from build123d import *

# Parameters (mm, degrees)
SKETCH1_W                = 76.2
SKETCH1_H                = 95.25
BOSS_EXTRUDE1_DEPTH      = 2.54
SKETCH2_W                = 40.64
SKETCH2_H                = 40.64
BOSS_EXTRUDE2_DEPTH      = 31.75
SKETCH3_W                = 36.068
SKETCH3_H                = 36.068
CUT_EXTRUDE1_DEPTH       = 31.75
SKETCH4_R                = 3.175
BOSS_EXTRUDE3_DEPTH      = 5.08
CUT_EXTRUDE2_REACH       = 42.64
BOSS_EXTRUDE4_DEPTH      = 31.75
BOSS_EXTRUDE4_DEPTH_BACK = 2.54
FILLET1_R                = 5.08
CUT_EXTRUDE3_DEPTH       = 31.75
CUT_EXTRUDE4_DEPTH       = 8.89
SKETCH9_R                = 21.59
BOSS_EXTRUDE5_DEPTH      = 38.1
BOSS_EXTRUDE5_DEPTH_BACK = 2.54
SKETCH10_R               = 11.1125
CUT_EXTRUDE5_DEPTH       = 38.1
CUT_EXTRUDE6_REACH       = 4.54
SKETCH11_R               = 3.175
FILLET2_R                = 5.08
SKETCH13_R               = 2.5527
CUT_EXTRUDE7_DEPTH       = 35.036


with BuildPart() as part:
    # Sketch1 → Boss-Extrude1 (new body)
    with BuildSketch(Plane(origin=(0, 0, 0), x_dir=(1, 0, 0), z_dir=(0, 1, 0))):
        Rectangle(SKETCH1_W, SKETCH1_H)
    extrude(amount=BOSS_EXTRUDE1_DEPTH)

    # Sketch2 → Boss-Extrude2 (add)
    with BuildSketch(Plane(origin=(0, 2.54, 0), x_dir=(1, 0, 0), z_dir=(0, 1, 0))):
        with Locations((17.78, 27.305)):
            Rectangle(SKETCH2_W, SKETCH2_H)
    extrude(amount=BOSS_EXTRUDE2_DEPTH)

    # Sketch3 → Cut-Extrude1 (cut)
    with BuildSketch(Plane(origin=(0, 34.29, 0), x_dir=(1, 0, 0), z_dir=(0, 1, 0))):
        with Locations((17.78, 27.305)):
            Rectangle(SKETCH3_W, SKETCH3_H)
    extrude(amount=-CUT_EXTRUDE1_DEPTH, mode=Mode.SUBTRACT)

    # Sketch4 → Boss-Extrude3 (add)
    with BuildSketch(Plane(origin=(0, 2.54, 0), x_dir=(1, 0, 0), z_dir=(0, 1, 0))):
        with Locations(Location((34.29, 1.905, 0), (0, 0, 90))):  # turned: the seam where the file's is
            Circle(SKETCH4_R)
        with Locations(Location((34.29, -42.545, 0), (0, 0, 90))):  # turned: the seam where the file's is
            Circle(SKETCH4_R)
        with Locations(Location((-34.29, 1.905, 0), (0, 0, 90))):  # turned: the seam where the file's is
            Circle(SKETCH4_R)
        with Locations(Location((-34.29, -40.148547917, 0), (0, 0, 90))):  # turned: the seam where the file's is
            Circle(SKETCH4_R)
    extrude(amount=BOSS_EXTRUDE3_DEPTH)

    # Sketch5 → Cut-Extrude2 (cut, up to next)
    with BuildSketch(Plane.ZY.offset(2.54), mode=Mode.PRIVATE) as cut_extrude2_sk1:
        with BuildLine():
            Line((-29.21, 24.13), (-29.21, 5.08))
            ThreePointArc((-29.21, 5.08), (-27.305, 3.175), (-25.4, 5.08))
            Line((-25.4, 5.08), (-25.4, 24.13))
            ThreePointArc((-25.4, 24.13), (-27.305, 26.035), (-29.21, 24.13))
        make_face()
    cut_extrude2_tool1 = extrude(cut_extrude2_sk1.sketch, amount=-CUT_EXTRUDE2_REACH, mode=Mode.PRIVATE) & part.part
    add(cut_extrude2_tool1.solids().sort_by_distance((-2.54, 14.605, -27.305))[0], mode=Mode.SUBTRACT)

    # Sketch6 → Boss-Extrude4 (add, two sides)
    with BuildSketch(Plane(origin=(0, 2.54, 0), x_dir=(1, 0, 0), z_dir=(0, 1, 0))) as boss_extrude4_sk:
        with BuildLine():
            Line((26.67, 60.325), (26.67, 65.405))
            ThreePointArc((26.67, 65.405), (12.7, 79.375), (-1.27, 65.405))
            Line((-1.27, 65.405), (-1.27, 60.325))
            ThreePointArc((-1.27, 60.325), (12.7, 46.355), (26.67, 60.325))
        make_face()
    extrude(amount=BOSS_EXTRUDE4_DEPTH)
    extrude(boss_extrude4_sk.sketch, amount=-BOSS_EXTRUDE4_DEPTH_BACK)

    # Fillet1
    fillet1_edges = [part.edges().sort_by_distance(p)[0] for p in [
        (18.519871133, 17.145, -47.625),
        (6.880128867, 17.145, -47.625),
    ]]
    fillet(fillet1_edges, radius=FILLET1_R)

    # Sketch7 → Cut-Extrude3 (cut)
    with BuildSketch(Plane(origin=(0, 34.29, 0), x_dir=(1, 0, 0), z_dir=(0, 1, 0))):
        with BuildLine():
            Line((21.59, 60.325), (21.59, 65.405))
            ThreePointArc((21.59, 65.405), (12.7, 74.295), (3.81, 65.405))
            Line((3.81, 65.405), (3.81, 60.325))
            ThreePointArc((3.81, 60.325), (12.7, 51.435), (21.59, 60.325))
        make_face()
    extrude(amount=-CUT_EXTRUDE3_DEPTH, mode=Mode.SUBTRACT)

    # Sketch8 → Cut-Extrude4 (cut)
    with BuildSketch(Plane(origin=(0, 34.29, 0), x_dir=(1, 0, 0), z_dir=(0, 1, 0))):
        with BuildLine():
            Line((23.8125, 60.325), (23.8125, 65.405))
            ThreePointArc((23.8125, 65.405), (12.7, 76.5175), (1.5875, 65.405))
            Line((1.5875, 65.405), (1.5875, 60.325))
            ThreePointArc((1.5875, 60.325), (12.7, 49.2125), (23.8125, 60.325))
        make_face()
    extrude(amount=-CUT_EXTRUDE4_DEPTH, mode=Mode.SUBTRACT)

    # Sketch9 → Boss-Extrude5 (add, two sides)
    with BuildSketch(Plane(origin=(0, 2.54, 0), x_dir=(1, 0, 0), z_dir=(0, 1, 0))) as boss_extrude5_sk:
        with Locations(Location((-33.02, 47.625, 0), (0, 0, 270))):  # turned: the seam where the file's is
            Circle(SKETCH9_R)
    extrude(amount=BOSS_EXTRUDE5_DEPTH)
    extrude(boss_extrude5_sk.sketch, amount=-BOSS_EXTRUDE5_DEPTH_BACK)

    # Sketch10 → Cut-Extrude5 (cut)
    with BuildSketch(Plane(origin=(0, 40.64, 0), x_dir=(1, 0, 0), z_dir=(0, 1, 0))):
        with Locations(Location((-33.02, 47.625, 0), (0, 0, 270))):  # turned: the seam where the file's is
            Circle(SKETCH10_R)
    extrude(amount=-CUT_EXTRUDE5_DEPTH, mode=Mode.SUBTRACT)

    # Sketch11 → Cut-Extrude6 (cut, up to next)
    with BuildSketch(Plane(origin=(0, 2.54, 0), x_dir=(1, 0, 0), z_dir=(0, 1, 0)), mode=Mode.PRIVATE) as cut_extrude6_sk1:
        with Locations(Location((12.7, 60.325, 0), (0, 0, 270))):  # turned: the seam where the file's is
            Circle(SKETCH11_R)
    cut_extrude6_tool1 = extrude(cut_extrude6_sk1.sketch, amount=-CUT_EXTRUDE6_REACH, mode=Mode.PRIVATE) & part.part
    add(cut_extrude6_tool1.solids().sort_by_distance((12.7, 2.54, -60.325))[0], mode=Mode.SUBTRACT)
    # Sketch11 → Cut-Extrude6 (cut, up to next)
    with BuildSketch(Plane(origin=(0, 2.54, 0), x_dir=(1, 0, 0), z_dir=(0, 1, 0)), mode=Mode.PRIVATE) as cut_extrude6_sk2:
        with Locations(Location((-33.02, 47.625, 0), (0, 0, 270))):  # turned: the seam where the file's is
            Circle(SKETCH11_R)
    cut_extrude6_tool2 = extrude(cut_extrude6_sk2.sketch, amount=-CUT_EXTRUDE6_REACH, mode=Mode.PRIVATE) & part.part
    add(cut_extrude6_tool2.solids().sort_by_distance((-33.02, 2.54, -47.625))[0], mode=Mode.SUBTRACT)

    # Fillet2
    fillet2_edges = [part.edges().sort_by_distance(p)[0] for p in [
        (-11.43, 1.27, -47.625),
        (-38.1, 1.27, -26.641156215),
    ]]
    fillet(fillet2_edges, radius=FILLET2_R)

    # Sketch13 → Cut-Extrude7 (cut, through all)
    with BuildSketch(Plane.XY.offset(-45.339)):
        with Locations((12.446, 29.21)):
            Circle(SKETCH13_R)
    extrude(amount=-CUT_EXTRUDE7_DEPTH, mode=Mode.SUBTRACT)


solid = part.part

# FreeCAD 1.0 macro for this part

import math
import FreeCAD as App
import Part
import Sketcher
Q = App.Units.Quantity


def edges_at(feature, points):
    """Names of the edges that pass closest to the given points."""
    edges = feature.Shape.Edges
    near = lambda p: min(range(len(edges)), key=lambda i: edges[i].distToShape(Part.Vertex(*p))[0])
    return sorted({f"Edge{near(p) + 1}" for p in points})


def add_polygon(sketch, points):
    """Adds a closed chain of lines whose ends are joined by coincident constraints."""
    first, n = sketch.GeometryCount, len(points)
    for a, b in zip(points, points[1:] + points[:1]):
        sketch.addGeometry(Part.LineSegment(App.Vector(*a, 0), App.Vector(*b, 0)), False)
    for i in range(n):
        sketch.addConstraint(Sketcher.Constraint("Coincident", first + i, 2, first + (i + 1) % n, 1))

doc = App.newDocument("Part")
body = doc.addObject("PartDesign::Body", "Body")

# Sketch on XZ plane
sketch1 = body.newObject("Sketcher::SketchObject", "Sketch")
sketch1.AttachmentSupport = (doc.getObject("XZ_Plane"), [""])
sketch1.MapMode = "FlatFace"
add_polygon(sketch1, [(-38, -48), (-38, 48), (38, 48), (38, -48)])  # lines 0-3
sketch1.addConstraint([
    Sketcher.Constraint("Vertical", 0),
    Sketcher.Constraint("Horizontal", 1),
    Sketcher.Constraint("Vertical", 2),
    Sketcher.Constraint("Horizontal", 3),
    Sketcher.Constraint("Symmetric", 0, 2, 2, 2, -1, 1),
    Sketcher.Constraint("DistanceX", 1, 1, 1, 2, Q("3 in")),
    Sketcher.Constraint("DistanceY", 0, 1, 0, 2, Q("3.75 in")),
])
pad1 = body.newObject("PartDesign::Pad", "Pad")
pad1.Profile = sketch1
pad1.Length = Q("0.1 in")
pad1.Reversed = True

# Sketch on XZ plane
sketch2 = body.newObject("Sketcher::SketchObject", "Sketch001")
sketch2.AttachmentSupport = (doc.getObject("XZ_Plane"), [""])
sketch2.MapMode = "FlatFace"
sketch2.AttachmentOffset = App.Placement(App.Vector(0, 0, -0.1 * 25.4), App.Rotation())
add_polygon(sketch2, [(-3, -48), (-3, -7), (38, -7), (38, -48)])  # lines 0-3
sketch2.addConstraint([
    Sketcher.Constraint("Vertical", 0),
    Sketcher.Constraint("Horizontal", 1),
    Sketcher.Constraint("Vertical", 2),
    Sketcher.Constraint("Horizontal", 3),
    Sketcher.Constraint("Equal", 3, 0),
    Sketcher.Constraint("DistanceX", 1, 1, 1, 2, Q("1.6 in")),
    Sketcher.Constraint("DistanceX", 0, 2, -1, 1, Q("0.1 in")),
    Sketcher.Constraint("DistanceY", 0, 2, -1, 1, Q("0.275 in")),
])
pad2 = body.newObject("PartDesign::Pad", "Pad001")
pad2.Profile = sketch2
pad2.Length = Q("1.25 in")
pad2.Reversed = True

# Sketch on XZ plane
sketch3 = body.newObject("Sketcher::SketchObject", "Sketch002")
sketch3.AttachmentSupport = (doc.getObject("XZ_Plane"), [""])
sketch3.MapMode = "FlatFace"
sketch3.AttachmentOffset = App.Placement(App.Vector(0, 0, -1.35 * 25.4), App.Rotation())
add_polygon(sketch3, [(0, -45), (0, -9), (36, -9), (36, -45)])  # lines 0-3
sketch3.addConstraint([
    Sketcher.Constraint("Vertical", 0),
    Sketcher.Constraint("Horizontal", 1),
    Sketcher.Constraint("Vertical", 2),
    Sketcher.Constraint("Horizontal", 3),
    Sketcher.Constraint("Equal", 3, 0),
    Sketcher.Constraint("DistanceX", 1, 1, 1, 2, Q("1.42 in")),
    Sketcher.Constraint("DistanceX", 0, 2, -1, 1, Q("0.01 in")),
    Sketcher.Constraint("DistanceY", 0, 2, -1, 1, Q("0.365 in")),
])
pocket1 = body.newObject("PartDesign::Pocket", "Pocket")
pocket1.Profile = sketch3
pocket1.Length = Q("1.25 in")
pocket1.Reversed = True

# Sketch on XZ plane
sketch4 = body.newObject("Sketcher::SketchObject", "Sketch003")
sketch4.AttachmentSupport = (doc.getObject("XZ_Plane"), [""])
sketch4.MapMode = "FlatFace"
sketch4.AttachmentOffset = App.Placement(App.Vector(0, 0, -0.1 * 25.4), App.Rotation())
sketch4.addGeometry([
    Part.Circle(App.Vector(34.3, -1.9, 0), App.Vector(0, 0, 1), 3.2),
    Part.Circle(App.Vector(34.3, 42.5, 0), App.Vector(0, 0, 1), 3.2),
    Part.Circle(App.Vector(-34.3, -1.9, 0), App.Vector(0, 0, 1), 3.2),
    Part.Circle(App.Vector(-34.3, 40.1, 0), App.Vector(0, 0, 1), 3.2),
], False)
sketch4.addConstraint([
    Sketcher.Constraint("Equal", 0, 1),
    Sketcher.Constraint("Equal", 1, 2),
    Sketcher.Constraint("Equal", 2, 3),
    Sketcher.Constraint("Symmetric", 0, 3, 2, 3, -2),
    Sketcher.Constraint("Vertical", 0, 3, 1, 3),
    Sketcher.Constraint("Vertical", 2, 3, 3, 3),
    Sketcher.Constraint("Diameter", 0, Q("0.25 in")),
    Sketcher.Constraint("DistanceX", 2, 3, 0, 3, Q("2.7 in")),
    Sketcher.Constraint("DistanceY", 0, 3, 1, 3, Q("1.75 in")),
    Sketcher.Constraint("DistanceY", 0, 3, -1, 1, Q("0.075 in")),
    Sketcher.Constraint("DistanceY", -1, 1, 3, 3, Q("40.148548 mm")),
])
pad3 = body.newObject("PartDesign::Pad", "Pad002")
pad3.Profile = sketch4
pad3.Length = Q("0.2 in")
pad3.Reversed = True

# Sketch on YZ plane
sketch5 = body.newObject("Sketcher::SketchObject", "Sketch004")
sketch5.AttachmentSupport = (doc.getObject("YZ_Plane"), [""])
sketch5.MapMode = "FlatFace"
sketch5.AttachmentOffset = App.Placement(App.Vector(0, 0, -0.1 * 25.4), App.Rotation())
sketch5.addGeometry([
    Part.LineSegment(App.Vector(24.1, -29.2, 0), App.Vector(5.1, -29.2, 0)),
    Part.ArcOfCircle(Part.Circle(App.Vector(5.1, -27.3, 0), App.Vector(0, 0, 1), 1.9), math.radians(90), math.radians(270)),
    Part.LineSegment(App.Vector(5.1, -25.4, 0), App.Vector(24.1, -25.4, 0)),
    Part.ArcOfCircle(Part.Circle(App.Vector(24.1, -27.3, 0), App.Vector(0, 0, 1), 1.9), math.radians(-90), math.radians(90)),
], False)
sketch5.addConstraint([
    Sketcher.Constraint("Tangent", 0, 2, 1, 2),
    Sketcher.Constraint("Tangent", 1, 1, 2, 1),
    Sketcher.Constraint("Tangent", 2, 2, 3, 2),
    Sketcher.Constraint("Tangent", 3, 1, 0, 1),
    Sketcher.Constraint("Horizontal", 0),
    Sketcher.Constraint("Horizontal", 2),
    Sketcher.Constraint("DistanceY", 1, 1, -1, 1, Q("1 in")),
    Sketcher.Constraint("Radius", 1, Q("0.075 in")),
    Sketcher.Constraint("DistanceX", 0, 2, 0, 1, Q("0.75 in")),
    Sketcher.Constraint("DistanceX", -1, 1, 1, 3, Q("0.2 in")),
])
pocket2 = body.newObject("PartDesign::Pocket", "Pocket001")
pocket2.Profile = sketch5
pocket2.Type = "UpToFirst"
pocket2.Reversed = True

# Sketch on XZ plane
sketch6 = body.newObject("Sketcher::SketchObject", "Sketch005")
sketch6.AttachmentSupport = (doc.getObject("XZ_Plane"), [""])
sketch6.MapMode = "FlatFace"
sketch6.AttachmentOffset = App.Placement(App.Vector(0, 0, -0.1 * 25.4), App.Rotation())
sketch6.addGeometry([
    Part.LineSegment(App.Vector(27, -60, 0), App.Vector(27, -65, 0)),
    Part.ArcOfCircle(Part.Circle(App.Vector(13, -65, 0), App.Vector(0, 0, 1), 14), math.radians(180), math.radians(360)),
    Part.LineSegment(App.Vector(-1, -65, 0), App.Vector(-1, -60, 0)),
    Part.ArcOfCircle(Part.Circle(App.Vector(13, -60, 0), App.Vector(0, 0, 1), 14), math.radians(0), math.radians(180)),
], False)
sketch6.addConstraint([
    Sketcher.Constraint("Tangent", 0, 2, 1, 2),
    Sketcher.Constraint("Tangent", 1, 1, 2, 1),
    Sketcher.Constraint("Tangent", 2, 2, 3, 2),
    Sketcher.Constraint("Tangent", 3, 1, 0, 1),
    Sketcher.Constraint("Vertical", 0),
    Sketcher.Constraint("Vertical", 2),
    Sketcher.Constraint("Radius", 1, Q("0.55 in")),
    Sketcher.Constraint("DistanceY", 0, 2, 0, 1, Q("0.2 in")),
    Sketcher.Constraint("DistanceX", -1, 1, 1, 3, Q("0.5 in")),
    Sketcher.Constraint("DistanceY", 1, 3, -1, 1, Q("2.575 in")),
])
pad4 = body.newObject("PartDesign::Pad", "Pad003")
pad4.Profile = sketch6
pad4.Type = "TwoLengths"
pad4.Length = Q("1.25 in")
pad4.Length2 = Q("0.1 in")
pad4.Reversed = True
doc.recompute()

fillet = body.newObject("PartDesign::Fillet", "Fillet")
fillet.Base = (pad4, edges_at(pad4, [(18.52, 17.145, -47.625), (6.88, 17.145, -47.625)]))
fillet.Radius = Q("0.2 in")

# Sketch on XZ plane
sketch7 = body.newObject("Sketcher::SketchObject", "Sketch006")
sketch7.AttachmentSupport = (doc.getObject("XZ_Plane"), [""])
sketch7.MapMode = "FlatFace"
sketch7.AttachmentOffset = App.Placement(App.Vector(0, 0, -1.35 * 25.4), App.Rotation())
sketch7.addGeometry([
    Part.LineSegment(App.Vector(22, -60, 0), App.Vector(22, -65, 0)),
    Part.ArcOfCircle(Part.Circle(App.Vector(13, -65, 0), App.Vector(0, 0, 1), 9), math.radians(180), math.radians(360)),
    Part.LineSegment(App.Vector(4, -65, 0), App.Vector(4, -60, 0)),
    Part.ArcOfCircle(Part.Circle(App.Vector(13, -60, 0), App.Vector(0, 0, 1), 9), math.radians(0), math.radians(180)),
], False)
sketch7.addConstraint([
    Sketcher.Constraint("Tangent", 0, 2, 1, 2),
    Sketcher.Constraint("Tangent", 1, 1, 2, 1),
    Sketcher.Constraint("Tangent", 2, 2, 3, 2),
    Sketcher.Constraint("Tangent", 3, 1, 0, 1),
    Sketcher.Constraint("Vertical", 0),
    Sketcher.Constraint("Vertical", 2),
    Sketcher.Constraint("Radius", 1, Q("0.35 in")),
    Sketcher.Constraint("DistanceY", 0, 2, 0, 1, Q("0.2 in")),
    Sketcher.Constraint("DistanceX", -1, 1, 1, 3, Q("0.5 in")),
    Sketcher.Constraint("DistanceY", 1, 3, -1, 1, Q("2.575 in")),
])
pocket3 = body.newObject("PartDesign::Pocket", "Pocket002")
pocket3.Profile = sketch7
pocket3.Length = Q("1.25 in")
pocket3.Reversed = True

# Sketch on XZ plane
sketch8 = body.newObject("Sketcher::SketchObject", "Sketch007")
sketch8.AttachmentSupport = (doc.getObject("XZ_Plane"), [""])
sketch8.MapMode = "FlatFace"
sketch8.AttachmentOffset = App.Placement(App.Vector(0, 0, -1.35 * 25.4), App.Rotation())
sketch8.addGeometry([
    Part.LineSegment(App.Vector(24, -60, 0), App.Vector(24, -65, 0)),
    Part.ArcOfCircle(Part.Circle(App.Vector(13, -65, 0), App.Vector(0, 0, 1), 11), math.radians(180), math.radians(360)),
    Part.LineSegment(App.Vector(2, -65, 0), App.Vector(2, -60, 0)),
    Part.ArcOfCircle(Part.Circle(App.Vector(13, -60, 0), App.Vector(0, 0, 1), 11), math.radians(0), math.radians(180)),
], False)
sketch8.addConstraint([
    Sketcher.Constraint("Tangent", 0, 2, 1, 2),
    Sketcher.Constraint("Tangent", 1, 1, 2, 1),
    Sketcher.Constraint("Tangent", 2, 2, 3, 2),
    Sketcher.Constraint("Tangent", 3, 1, 0, 1),
    Sketcher.Constraint("Vertical", 0),
    Sketcher.Constraint("Vertical", 2),
    Sketcher.Constraint("DistanceY", 0, 2, 0, 1, Q("0.2 in")),
    Sketcher.Constraint("Radius", 1, Q("0.4375 in")),
    Sketcher.Constraint("DistanceX", -1, 1, 1, 3, Q("0.5 in")),
    Sketcher.Constraint("DistanceY", 1, 3, -1, 1, Q("2.575 in")),
])
pocket4 = body.newObject("PartDesign::Pocket", "Pocket003")
pocket4.Profile = sketch8
pocket4.Length = Q("0.35 in")
pocket4.Reversed = True

# Sketch on XZ plane
sketch9 = body.newObject("Sketcher::SketchObject", "Sketch008")
sketch9.AttachmentSupport = (doc.getObject("XZ_Plane"), [""])
sketch9.MapMode = "FlatFace"
sketch9.AttachmentOffset = App.Placement(App.Vector(0, 0, -0.1 * 25.4), App.Rotation())
sketch9.addGeometry(Part.Circle(App.Vector(-33, -48, 0), App.Vector(0, 0, 1), 22), False)
sketch9.addConstraint([
    Sketcher.Constraint("Diameter", 0, Q("1.7 in")),
    Sketcher.Constraint("DistanceX", 0, 3, -1, 1, Q("1.3 in")),
    Sketcher.Constraint("DistanceY", 0, 3, -1, 1, Q("1.875 in")),
])
pad5 = body.newObject("PartDesign::Pad", "Pad004")
pad5.Profile = sketch9
pad5.Type = "TwoLengths"
pad5.Length = Q("1.5 in")
pad5.Length2 = Q("0.1 in")
pad5.Reversed = True

# Sketch on XZ plane
sketch10 = body.newObject("Sketcher::SketchObject", "Sketch009")
sketch10.AttachmentSupport = (doc.getObject("XZ_Plane"), [""])
sketch10.MapMode = "FlatFace"
sketch10.AttachmentOffset = App.Placement(App.Vector(0, 0, -1.6 * 25.4), App.Rotation())
sketch10.addGeometry(Part.Circle(App.Vector(-33, -48, 0), App.Vector(0, 0, 1), 11), False)
sketch10.addConstraint([
    Sketcher.Constraint("Diameter", 0, Q("0.875 in")),
    Sketcher.Constraint("DistanceX", 0, 3, -1, 1, Q("1.3 in")),
    Sketcher.Constraint("DistanceY", 0, 3, -1, 1, Q("1.875 in")),
])
pocket5 = body.newObject("PartDesign::Pocket", "Pocket004")
pocket5.Profile = sketch10
pocket5.Length = Q("1.5 in")
pocket5.Reversed = True

# Sketch on XZ plane
sketch11 = body.newObject("Sketcher::SketchObject", "Sketch010")
sketch11.AttachmentSupport = (doc.getObject("XZ_Plane"), [""])
sketch11.MapMode = "FlatFace"
sketch11.AttachmentOffset = App.Placement(App.Vector(0, 0, -0.1 * 25.4), App.Rotation())
sketch11.addGeometry(Part.Circle(App.Vector(12.7, -60.3, 0), App.Vector(0, 0, 1), 3.2), False)
sketch11.addConstraint([
    Sketcher.Constraint("Diameter", 0, Q("0.25 in")),
    Sketcher.Constraint("DistanceX", -1, 1, 0, 3, Q("0.5 in")),
    Sketcher.Constraint("DistanceY", 0, 3, -1, 1, Q("2.375 in")),
])
pocket6 = body.newObject("PartDesign::Pocket", "Pocket005")
pocket6.Profile = sketch11
pocket6.Type = "UpToFirst"
pocket6.Reversed = True

# Sketch on XZ plane
sketch12 = body.newObject("Sketcher::SketchObject", "Sketch011")
sketch12.AttachmentSupport = (doc.getObject("XZ_Plane"), [""])
sketch12.MapMode = "FlatFace"
sketch12.AttachmentOffset = App.Placement(App.Vector(0, 0, -0.1 * 25.4), App.Rotation())
sketch12.addGeometry(Part.Circle(App.Vector(-33, -47.6, 0), App.Vector(0, 0, 1), 3.2), False)
sketch12.addConstraint([
    Sketcher.Constraint("Diameter", 0, Q("0.25 in")),
    Sketcher.Constraint("DistanceX", 0, 3, -1, 1, Q("1.3 in")),
    Sketcher.Constraint("DistanceY", 0, 3, -1, 1, Q("1.875 in")),
])
pocket7 = body.newObject("PartDesign::Pocket", "Pocket006")
pocket7.Profile = sketch12
pocket7.Type = "UpToFirst"
pocket7.Reversed = True
doc.recompute()

fillet2 = body.newObject("PartDesign::Fillet", "Fillet001")
fillet2.Base = (pocket7, edges_at(pocket7, [(-11.43, 1.27, -47.625), (-38.1, 1.27, -26.641)]))
fillet2.Radius = Q("0.2 in")

# Sketch on XY plane
sketch13 = body.newObject("Sketcher::SketchObject", "Sketch012")
sketch13.AttachmentSupport = (doc.getObject("XY_Plane"), [""])
sketch13.MapMode = "FlatFace"
sketch13.AttachmentOffset = App.Placement(App.Vector(0, 0, -1.785 * 25.4), App.Rotation())
sketch13.addGeometry(Part.Circle(App.Vector(12.4, 29.2, 0), App.Vector(0, 0, 1), 2.6), False)
sketch13.addConstraint([
    Sketcher.Constraint("Diameter", 0, Q("0.201 in")),
    Sketcher.Constraint("DistanceX", -1, 1, 0, 3, Q("0.49 in")),
    Sketcher.Constraint("DistanceY", -1, 1, 0, 3, Q("1.15 in")),
])
pocket8 = body.newObject("PartDesign::Pocket", "Pocket007")
pocket8.Profile = sketch13
pocket8.Type = "ThroughAll"

doc.recompute()
